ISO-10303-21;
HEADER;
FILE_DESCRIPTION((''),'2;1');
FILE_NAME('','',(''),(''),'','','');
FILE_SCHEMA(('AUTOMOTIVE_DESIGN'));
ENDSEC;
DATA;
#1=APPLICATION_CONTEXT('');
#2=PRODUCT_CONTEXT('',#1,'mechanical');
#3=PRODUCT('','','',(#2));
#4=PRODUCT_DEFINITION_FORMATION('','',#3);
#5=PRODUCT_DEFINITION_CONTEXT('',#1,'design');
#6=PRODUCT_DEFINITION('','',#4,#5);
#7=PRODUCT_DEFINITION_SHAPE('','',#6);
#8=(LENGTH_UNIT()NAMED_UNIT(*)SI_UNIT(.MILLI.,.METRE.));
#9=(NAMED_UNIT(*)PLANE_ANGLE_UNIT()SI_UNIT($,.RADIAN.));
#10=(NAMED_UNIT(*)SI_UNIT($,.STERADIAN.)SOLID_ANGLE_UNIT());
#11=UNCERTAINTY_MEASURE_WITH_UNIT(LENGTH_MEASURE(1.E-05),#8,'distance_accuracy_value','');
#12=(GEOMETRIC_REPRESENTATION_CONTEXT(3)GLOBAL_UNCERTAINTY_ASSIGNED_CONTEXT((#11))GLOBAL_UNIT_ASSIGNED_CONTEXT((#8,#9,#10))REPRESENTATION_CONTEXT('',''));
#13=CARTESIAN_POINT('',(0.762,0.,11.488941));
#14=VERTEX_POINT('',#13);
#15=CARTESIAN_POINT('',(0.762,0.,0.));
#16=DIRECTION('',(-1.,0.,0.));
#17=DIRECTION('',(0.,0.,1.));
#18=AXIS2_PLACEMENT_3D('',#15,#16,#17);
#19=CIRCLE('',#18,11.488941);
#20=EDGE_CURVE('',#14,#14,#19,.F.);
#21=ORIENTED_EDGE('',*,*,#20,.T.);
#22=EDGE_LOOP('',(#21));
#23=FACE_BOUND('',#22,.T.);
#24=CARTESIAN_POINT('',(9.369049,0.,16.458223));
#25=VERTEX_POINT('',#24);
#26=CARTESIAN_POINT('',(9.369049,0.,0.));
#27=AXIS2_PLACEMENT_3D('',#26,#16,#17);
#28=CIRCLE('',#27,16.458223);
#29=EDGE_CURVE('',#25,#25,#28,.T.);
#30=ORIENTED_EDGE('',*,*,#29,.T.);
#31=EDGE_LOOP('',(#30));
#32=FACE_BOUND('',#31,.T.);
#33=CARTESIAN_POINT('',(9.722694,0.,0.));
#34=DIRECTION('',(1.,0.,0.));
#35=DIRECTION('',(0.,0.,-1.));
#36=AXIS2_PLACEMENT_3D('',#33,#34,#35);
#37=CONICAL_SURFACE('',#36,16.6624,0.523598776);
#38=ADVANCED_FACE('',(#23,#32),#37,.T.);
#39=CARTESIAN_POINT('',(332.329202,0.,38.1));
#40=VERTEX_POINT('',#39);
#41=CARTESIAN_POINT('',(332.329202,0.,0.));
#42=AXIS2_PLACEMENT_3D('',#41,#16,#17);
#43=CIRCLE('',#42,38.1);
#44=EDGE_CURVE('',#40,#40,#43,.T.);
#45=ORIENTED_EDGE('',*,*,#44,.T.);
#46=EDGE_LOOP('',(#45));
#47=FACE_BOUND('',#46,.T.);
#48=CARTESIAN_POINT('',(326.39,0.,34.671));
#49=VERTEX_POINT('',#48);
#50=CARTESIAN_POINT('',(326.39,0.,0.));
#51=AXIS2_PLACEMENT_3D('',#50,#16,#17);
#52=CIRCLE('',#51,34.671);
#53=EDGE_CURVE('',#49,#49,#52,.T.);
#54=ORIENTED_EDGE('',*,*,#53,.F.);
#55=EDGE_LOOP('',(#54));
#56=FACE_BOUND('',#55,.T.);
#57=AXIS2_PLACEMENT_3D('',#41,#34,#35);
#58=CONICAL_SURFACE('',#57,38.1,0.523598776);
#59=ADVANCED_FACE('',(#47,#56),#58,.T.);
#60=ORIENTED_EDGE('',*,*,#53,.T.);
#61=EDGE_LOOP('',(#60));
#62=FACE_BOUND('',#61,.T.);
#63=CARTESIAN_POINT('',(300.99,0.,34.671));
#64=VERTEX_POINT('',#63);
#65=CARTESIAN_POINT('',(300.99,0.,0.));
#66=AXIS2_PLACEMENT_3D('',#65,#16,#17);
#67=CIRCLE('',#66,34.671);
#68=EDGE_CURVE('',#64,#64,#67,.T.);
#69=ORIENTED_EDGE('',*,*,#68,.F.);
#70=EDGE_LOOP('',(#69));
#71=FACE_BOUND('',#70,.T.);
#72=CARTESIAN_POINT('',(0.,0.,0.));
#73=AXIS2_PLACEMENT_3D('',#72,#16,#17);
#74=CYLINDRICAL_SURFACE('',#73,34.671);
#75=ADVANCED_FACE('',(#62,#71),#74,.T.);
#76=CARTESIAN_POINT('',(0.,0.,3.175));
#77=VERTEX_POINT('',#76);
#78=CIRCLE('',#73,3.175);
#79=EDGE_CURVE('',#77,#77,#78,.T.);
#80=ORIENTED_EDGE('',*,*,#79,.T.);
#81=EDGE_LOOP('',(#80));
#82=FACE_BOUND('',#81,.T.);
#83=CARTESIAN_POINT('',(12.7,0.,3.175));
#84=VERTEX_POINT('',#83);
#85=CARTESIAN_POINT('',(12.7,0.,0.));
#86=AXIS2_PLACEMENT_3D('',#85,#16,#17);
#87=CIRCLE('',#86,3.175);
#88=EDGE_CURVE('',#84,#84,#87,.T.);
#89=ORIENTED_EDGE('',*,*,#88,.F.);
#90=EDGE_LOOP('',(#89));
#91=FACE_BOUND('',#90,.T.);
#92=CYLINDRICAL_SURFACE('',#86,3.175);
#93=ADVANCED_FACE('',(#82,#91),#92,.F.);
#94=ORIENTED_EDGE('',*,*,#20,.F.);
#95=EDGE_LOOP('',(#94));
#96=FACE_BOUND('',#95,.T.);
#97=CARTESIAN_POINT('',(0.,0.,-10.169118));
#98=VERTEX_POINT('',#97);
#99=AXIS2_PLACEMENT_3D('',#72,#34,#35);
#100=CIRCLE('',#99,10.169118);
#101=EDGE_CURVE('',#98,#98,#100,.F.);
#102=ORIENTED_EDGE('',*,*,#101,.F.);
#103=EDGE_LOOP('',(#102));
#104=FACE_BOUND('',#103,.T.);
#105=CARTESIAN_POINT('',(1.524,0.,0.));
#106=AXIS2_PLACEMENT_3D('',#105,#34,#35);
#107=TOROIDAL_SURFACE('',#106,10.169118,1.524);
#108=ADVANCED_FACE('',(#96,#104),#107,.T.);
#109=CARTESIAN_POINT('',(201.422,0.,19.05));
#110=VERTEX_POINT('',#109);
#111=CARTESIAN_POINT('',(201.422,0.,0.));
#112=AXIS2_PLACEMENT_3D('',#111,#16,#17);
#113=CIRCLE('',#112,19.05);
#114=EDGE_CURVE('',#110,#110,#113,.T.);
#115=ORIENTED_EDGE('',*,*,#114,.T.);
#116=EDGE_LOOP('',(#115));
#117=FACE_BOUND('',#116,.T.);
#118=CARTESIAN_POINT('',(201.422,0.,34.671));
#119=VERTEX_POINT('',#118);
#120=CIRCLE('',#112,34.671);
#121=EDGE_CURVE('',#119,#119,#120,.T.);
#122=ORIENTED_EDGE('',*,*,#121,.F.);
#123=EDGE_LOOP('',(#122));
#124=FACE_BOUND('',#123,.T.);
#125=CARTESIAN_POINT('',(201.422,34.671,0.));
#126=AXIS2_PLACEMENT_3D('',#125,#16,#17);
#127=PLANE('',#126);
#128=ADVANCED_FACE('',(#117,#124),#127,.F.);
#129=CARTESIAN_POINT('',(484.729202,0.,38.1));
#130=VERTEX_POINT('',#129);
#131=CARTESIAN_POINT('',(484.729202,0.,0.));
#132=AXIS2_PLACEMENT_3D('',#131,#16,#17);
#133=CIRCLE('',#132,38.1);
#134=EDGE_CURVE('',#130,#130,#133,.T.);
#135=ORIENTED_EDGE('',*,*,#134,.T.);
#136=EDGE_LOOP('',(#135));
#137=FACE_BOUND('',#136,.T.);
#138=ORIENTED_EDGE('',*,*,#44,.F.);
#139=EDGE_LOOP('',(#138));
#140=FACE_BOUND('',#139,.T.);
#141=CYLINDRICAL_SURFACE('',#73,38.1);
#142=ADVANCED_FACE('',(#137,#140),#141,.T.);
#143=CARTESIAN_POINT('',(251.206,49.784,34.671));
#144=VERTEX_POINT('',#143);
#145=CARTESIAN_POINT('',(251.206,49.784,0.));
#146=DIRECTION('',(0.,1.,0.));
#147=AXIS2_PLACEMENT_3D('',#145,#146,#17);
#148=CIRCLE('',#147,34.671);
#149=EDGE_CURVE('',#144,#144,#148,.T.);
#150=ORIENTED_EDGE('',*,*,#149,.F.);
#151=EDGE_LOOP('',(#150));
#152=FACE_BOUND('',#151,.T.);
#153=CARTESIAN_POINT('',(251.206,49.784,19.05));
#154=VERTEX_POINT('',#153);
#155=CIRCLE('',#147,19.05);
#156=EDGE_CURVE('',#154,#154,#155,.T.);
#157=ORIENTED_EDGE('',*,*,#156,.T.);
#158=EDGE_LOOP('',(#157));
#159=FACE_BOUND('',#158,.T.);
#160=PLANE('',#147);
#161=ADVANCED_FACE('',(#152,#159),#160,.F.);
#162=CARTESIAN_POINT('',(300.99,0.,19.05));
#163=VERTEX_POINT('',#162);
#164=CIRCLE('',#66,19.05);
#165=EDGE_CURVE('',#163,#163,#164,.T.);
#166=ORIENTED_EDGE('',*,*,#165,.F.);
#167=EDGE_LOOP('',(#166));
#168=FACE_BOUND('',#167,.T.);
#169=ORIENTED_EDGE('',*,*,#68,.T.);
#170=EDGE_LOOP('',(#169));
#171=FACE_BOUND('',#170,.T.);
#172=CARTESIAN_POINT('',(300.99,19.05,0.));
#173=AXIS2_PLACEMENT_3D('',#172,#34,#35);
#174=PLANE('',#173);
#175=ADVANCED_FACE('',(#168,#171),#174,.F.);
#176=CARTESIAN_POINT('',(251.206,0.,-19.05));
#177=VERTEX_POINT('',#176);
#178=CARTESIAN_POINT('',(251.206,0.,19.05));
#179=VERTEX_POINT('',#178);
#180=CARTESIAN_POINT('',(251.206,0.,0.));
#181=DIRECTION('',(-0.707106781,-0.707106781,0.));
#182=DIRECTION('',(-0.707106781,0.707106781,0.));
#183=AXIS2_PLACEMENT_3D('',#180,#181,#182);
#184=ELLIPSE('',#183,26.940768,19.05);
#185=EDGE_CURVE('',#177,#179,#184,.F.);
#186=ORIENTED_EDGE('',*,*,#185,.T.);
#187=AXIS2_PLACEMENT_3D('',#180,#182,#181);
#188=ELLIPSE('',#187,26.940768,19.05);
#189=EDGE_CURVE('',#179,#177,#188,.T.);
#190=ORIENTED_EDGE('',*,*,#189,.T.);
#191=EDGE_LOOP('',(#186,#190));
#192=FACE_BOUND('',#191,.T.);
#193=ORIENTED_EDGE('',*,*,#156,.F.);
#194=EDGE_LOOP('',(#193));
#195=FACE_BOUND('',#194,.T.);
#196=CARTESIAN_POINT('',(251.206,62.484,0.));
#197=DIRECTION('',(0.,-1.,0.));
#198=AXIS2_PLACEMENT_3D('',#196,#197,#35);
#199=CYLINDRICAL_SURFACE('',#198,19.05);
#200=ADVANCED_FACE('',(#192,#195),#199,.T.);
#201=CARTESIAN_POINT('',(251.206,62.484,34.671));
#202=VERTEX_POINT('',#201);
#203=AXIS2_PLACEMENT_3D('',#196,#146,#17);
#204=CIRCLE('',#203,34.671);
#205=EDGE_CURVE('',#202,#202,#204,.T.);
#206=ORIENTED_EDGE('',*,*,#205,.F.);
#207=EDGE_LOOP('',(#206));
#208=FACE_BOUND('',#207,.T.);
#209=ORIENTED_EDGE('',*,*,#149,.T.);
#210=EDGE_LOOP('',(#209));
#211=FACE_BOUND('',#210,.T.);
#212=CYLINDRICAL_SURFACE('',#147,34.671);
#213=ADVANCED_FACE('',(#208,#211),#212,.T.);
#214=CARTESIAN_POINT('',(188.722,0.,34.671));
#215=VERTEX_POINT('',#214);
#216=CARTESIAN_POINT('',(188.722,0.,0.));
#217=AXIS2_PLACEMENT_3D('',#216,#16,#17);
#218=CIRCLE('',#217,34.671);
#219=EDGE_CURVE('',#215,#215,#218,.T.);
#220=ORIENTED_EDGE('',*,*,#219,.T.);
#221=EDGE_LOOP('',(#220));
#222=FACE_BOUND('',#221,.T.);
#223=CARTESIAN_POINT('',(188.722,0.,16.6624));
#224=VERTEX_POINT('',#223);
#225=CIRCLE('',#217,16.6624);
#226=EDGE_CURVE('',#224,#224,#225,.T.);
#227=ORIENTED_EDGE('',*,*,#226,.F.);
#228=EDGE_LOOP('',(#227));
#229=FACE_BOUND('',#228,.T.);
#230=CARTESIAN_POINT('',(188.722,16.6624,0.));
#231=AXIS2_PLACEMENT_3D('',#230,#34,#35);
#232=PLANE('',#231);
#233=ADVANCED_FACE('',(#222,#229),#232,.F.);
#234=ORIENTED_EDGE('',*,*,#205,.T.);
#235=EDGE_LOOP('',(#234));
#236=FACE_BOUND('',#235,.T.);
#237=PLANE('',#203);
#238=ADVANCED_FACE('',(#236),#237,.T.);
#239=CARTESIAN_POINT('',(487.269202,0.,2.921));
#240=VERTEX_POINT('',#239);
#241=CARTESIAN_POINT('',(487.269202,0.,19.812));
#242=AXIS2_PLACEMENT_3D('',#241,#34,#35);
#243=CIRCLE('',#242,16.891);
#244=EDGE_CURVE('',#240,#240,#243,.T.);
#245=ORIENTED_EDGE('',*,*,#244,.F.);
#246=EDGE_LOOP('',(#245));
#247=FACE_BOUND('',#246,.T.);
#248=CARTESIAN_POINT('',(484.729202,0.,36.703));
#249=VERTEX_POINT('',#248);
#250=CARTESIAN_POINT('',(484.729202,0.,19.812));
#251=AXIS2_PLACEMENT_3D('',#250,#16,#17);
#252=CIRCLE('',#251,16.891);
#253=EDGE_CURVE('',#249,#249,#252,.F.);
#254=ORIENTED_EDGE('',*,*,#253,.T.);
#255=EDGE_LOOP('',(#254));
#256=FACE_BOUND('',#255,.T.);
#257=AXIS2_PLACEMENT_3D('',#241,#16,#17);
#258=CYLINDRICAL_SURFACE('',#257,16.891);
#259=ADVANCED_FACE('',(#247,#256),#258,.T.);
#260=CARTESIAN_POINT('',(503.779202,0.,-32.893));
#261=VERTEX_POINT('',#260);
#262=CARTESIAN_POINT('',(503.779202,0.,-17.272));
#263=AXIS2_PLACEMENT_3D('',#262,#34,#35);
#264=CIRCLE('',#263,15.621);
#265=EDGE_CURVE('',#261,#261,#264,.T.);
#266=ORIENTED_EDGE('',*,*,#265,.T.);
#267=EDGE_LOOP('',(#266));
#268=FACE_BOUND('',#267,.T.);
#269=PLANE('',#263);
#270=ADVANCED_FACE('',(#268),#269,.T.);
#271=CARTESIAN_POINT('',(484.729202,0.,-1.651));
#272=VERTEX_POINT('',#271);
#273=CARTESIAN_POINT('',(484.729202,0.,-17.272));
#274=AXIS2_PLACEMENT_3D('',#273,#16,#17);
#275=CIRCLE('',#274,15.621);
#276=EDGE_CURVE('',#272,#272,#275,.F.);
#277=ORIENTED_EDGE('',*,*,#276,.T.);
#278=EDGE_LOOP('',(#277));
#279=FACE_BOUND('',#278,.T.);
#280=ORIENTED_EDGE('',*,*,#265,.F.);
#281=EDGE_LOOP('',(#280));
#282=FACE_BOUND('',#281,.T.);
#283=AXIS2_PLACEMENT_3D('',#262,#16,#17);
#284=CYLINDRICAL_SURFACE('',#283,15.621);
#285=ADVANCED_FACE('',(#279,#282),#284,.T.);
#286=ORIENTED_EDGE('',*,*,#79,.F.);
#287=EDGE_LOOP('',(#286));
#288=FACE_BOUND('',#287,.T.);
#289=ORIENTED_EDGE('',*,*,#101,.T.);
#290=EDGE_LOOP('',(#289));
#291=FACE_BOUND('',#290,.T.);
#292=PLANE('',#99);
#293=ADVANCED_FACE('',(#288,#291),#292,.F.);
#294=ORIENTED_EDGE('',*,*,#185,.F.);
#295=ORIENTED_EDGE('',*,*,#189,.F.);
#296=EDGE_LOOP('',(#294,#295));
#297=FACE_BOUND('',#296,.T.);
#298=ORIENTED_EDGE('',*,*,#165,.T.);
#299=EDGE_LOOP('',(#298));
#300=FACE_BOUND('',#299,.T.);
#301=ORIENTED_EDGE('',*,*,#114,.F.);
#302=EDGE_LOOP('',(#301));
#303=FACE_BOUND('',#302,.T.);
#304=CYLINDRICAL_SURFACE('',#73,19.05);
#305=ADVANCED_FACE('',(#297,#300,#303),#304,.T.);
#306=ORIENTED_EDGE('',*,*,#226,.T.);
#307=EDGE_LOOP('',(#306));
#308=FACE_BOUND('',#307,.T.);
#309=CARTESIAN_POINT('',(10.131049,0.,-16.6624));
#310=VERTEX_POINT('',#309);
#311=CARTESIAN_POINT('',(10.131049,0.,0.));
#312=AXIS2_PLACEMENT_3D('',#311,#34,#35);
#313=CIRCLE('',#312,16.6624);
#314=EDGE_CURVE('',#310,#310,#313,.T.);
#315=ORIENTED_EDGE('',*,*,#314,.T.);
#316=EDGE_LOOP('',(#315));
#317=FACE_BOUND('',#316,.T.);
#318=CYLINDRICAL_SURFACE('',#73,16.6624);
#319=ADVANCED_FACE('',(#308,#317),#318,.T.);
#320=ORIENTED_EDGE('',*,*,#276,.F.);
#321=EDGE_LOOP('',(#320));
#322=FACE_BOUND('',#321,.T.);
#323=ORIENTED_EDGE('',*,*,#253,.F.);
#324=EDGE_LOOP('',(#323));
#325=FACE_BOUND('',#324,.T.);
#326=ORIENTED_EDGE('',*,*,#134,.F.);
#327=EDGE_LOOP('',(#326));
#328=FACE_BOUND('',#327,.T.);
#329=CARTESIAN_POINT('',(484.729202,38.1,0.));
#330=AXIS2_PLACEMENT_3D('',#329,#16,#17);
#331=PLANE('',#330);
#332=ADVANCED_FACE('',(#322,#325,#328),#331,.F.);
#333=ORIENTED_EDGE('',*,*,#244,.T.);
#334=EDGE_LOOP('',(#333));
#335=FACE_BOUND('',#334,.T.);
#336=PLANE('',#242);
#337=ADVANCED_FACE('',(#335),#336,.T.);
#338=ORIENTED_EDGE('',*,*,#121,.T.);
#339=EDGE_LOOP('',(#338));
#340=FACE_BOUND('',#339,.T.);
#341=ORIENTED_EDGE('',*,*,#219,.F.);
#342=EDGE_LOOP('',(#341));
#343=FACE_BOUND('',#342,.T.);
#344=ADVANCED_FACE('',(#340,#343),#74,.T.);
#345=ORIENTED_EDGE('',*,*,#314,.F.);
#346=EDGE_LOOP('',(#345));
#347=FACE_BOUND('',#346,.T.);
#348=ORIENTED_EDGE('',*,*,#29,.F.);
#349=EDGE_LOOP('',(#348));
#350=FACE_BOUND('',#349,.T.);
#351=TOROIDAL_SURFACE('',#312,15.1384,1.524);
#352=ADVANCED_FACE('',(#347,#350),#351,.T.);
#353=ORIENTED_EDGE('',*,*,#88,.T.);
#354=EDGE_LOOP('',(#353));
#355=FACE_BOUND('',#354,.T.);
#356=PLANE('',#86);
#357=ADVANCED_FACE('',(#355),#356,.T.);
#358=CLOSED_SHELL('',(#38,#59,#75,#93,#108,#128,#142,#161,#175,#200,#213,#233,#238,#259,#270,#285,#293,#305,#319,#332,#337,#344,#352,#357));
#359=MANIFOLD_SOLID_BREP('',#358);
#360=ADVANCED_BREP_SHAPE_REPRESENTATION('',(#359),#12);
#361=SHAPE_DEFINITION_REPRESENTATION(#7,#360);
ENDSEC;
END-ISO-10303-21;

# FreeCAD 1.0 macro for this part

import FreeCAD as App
import Part
import Sketcher

V = App.Vector
Q = App.Units.Quantity


def edges_at(feature, points):
    """Names of the edges that pass closest to the given points."""
    edges = feature.Shape.Edges
    near = lambda p: min(range(len(edges)), key=lambda i: edges[i].distToShape(Part.Vertex(*p))[0])
    return sorted({f"Edge{near(p) + 1}" for p in points})

doc = App.newDocument("Part")
body = doc.addObject("PartDesign::Body", "Body")

# Sketch on XY plane
sketch1 = body.newObject("Sketcher::SketchObject", "Sketch")
sketch1.AttachmentSupport = (doc.getObject("XY_Plane"), [""])
sketch1.MapMode = "FlatFace"
sketch1.addGeometry(Part.LineSegment(V(0, 11.049, 0), V(0, 0, 0)), False)
sketch1.addGeometry(Part.LineSegment(V(0, 0, 0), V(484.729202, 0, 0)), False)
sketch1.addGeometry(Part.LineSegment(V(484.729202, 0, 0), V(484.729202, 38.1, 0)), False)
sketch1.addGeometry(Part.LineSegment(V(484.729202, 38.1, 0), V(332.329202, 38.1, 0)), False)
sketch1.addGeometry(Part.LineSegment(V(332.329202, 38.1, 0), V(326.39, 34.671, 0)), False)
sketch1.addGeometry(Part.LineSegment(V(326.39, 34.671, 0), V(300.99, 34.671, 0)), False)
sketch1.addGeometry(Part.LineSegment(V(300.99, 34.671, 0), V(300.99, 19.05, 0)), False)
sketch1.addGeometry(Part.LineSegment(V(300.99, 19.05, 0), V(201.422, 19.05, 0)), False)
sketch1.addGeometry(Part.LineSegment(V(201.422, 19.05, 0), V(201.422, 34.671, 0)), False)
sketch1.addGeometry(Part.LineSegment(V(201.422, 34.671, 0), V(188.722, 34.671, 0)), False)
sketch1.addGeometry(Part.LineSegment(V(188.722, 34.671, 0), V(188.722, 16.6624, 0)), False)
sketch1.addGeometry(Part.LineSegment(V(188.722, 16.6624, 0), V(9.722694, 16.6624, 0)), False)
sketch1.addGeometry(Part.LineSegment(V(9.722694, 16.6624, 0), V(0, 11.049, 0)), False)
sketch1.addConstraint(Sketcher.Constraint("Coincident", 0, 2, 1, 1))
sketch1.addConstraint(Sketcher.Constraint("Coincident", 1, 2, 2, 1))
sketch1.addConstraint(Sketcher.Constraint("Coincident", 2, 2, 3, 1))
sketch1.addConstraint(Sketcher.Constraint("Coincident", 3, 2, 4, 1))
sketch1.addConstraint(Sketcher.Constraint("Coincident", 4, 2, 5, 1))
sketch1.addConstraint(Sketcher.Constraint("Coincident", 5, 2, 6, 1))
sketch1.addConstraint(Sketcher.Constraint("Coincident", 6, 2, 7, 1))
sketch1.addConstraint(Sketcher.Constraint("Coincident", 7, 2, 8, 1))
sketch1.addConstraint(Sketcher.Constraint("Coincident", 8, 2, 9, 1))
sketch1.addConstraint(Sketcher.Constraint("Coincident", 9, 2, 10, 1))
sketch1.addConstraint(Sketcher.Constraint("Coincident", 10, 2, 11, 1))
sketch1.addConstraint(Sketcher.Constraint("Coincident", 11, 2, 12, 1))
sketch1.addConstraint(Sketcher.Constraint("Coincident", 12, 2, 0, 1))
sketch1.addConstraint(Sketcher.Constraint("Vertical", 0))
sketch1.addConstraint(Sketcher.Constraint("Horizontal", 1))
sketch1.addConstraint(Sketcher.Constraint("Vertical", 2))
sketch1.addConstraint(Sketcher.Constraint("Horizontal", 3))
sketch1.addConstraint(Sketcher.Constraint("Horizontal", 5))
sketch1.addConstraint(Sketcher.Constraint("Vertical", 6))
sketch1.addConstraint(Sketcher.Constraint("Horizontal", 7))
sketch1.addConstraint(Sketcher.Constraint("Vertical", 8))
sketch1.addConstraint(Sketcher.Constraint("Horizontal", 9))
sketch1.addConstraint(Sketcher.Constraint("Vertical", 10))
sketch1.addConstraint(Sketcher.Constraint("Horizontal", 11))
sketch1.addConstraint(Sketcher.Constraint("Coincident", 0, 2, -1, 1))
sketch1.addConstraint(Sketcher.Constraint("Parallel", 4, 12))
sketch1.addConstraint(Sketcher.Constraint("Horizontal", 5, 2, 8, 2))
sketch1.addConstraint(Sketcher.Constraint("DistanceX", 3, 2, 3, 1, Q("6 in")))
sketch1.addConstraint(Sketcher.Constraint("DistanceX", 5, 2, 5, 1, Q("1 in")))
sketch1.addConstraint(Sketcher.Constraint("DistanceX", 9, 2, 9, 1, Q("0.5 in")))
sketch1.addConstraint(Sketcher.Constraint("DistanceY", 2, 1, 2, 2, Q("1.5 in")))
sketch1.addConstraint(Sketcher.Constraint("Angle", 4, Q("-150 deg")))
sketch1.addConstraint(Sketcher.Constraint("DistanceX", 7, 2, 7, 1, Q("3.92 in")))
sketch1.addConstraint(Sketcher.Constraint("Distance", 4, Q("0.27 in")))
sketch1.addConstraint(Sketcher.Constraint("DistanceY", 0, 2, 0, 1, Q("0.435 in")))
sketch1.addConstraint(Sketcher.Constraint("DistanceY", 6, 2, 6, 1, Q("0.615 in")))
sketch1.addConstraint(Sketcher.Constraint("DistanceY", 10, 2, 10, 1, Q("0.709 in")))
sketch1.addConstraint(Sketcher.Constraint("DistanceX", -1, 1, 4, 2, Q("12.85 in")))
revolution = body.newObject("PartDesign::Revolution", "Revolution")
revolution.Profile = sketch1
revolution.ReferenceAxis = (sketch1, ["H_Axis"])
revolution.Angle = 360

# Sketch on XZ plane
sketch2 = body.newObject("Sketcher::SketchObject", "Sketch001")
sketch2.AttachmentSupport = (doc.getObject("XZ_Plane"), [""])
sketch2.MapMode = "FlatFace"
sketch2.addGeometry(Part.Circle(V(251.206, 0, 0), V(0, 0, 1), 19.05), False)
sketch2.addConstraint(Sketcher.Constraint("PointOnObject", 0, 3, -1))
sketch2.addConstraint(Sketcher.Constraint("Diameter", 0, Q("1.5 in")))
sketch2.addConstraint(Sketcher.Constraint("DistanceX", -1, 1, 0, 3, Q("9.89 in")))
pad1 = body.newObject("PartDesign::Pad", "Pad")
pad1.Profile = sketch2
pad1.Length = Q("2.46 in")
pad1.Reversed = True

# Sketch on XZ plane
sketch3 = body.newObject("Sketcher::SketchObject", "Sketch002")
sketch3.AttachmentSupport = (doc.getObject("XZ_Plane"), [""])
sketch3.MapMode = "FlatFace"
sketch3.AttachmentOffset = App.Placement(V(0, 0, -2.46 * 25.4), App.Rotation())
sketch3.addGeometry(Part.Circle(V(251.206, 0, 0), V(0, 0, 1), 34.671), False)
sketch3.addConstraint(Sketcher.Constraint("PointOnObject", 0, 3, -1))
sketch3.addConstraint(Sketcher.Constraint("Diameter", 0, Q("2.73 in")))
sketch3.addConstraint(Sketcher.Constraint("DistanceX", -1, 1, 0, 3, Q("9.89 in")))
pad2 = body.newObject("PartDesign::Pad", "Pad001")
pad2.Profile = sketch3
pad2.Length = Q("0.5 in")

# Sketch on YZ plane
sketch4 = body.newObject("Sketcher::SketchObject", "Sketch003")
sketch4.AttachmentSupport = (doc.getObject("YZ_Plane"), [""])
sketch4.MapMode = "FlatFace"
sketch4.AttachmentOffset = App.Placement(V(0, 0, 484.729202), App.Rotation())
sketch4.addGeometry(Part.Circle(V(0, -17.272, 0), V(0, 0, 1), 15.621), False)
sketch4.addConstraint(Sketcher.Constraint("PointOnObject", 0, 3, -2))
sketch4.addConstraint(Sketcher.Constraint("Diameter", 0, Q("1.23 in")))
sketch4.addConstraint(Sketcher.Constraint("DistanceY", 0, 3, -1, 1, Q("0.68 in")))
pad3 = body.newObject("PartDesign::Pad", "Pad002")
pad3.Profile = sketch4
pad3.Length = Q("0.75 in")

# Sketch on YZ plane
sketch5 = body.newObject("Sketcher::SketchObject", "Sketch004")
sketch5.AttachmentSupport = (doc.getObject("YZ_Plane"), [""])
sketch5.MapMode = "FlatFace"
sketch5.AttachmentOffset = App.Placement(V(0, 0, 484.729202), App.Rotation())
sketch5.addGeometry(Part.Circle(V(0, 19.812, 0), V(0, 0, 1), 16.891), False)
sketch5.addConstraint(Sketcher.Constraint("PointOnObject", 0, 3, -2))
sketch5.addConstraint(Sketcher.Constraint("Diameter", 0, Q("1.33 in")))
sketch5.addConstraint(Sketcher.Constraint("DistanceY", -1, 1, 0, 3, Q("0.78 in")))
pad4 = body.newObject("PartDesign::Pad", "Pad003")
pad4.Profile = sketch5
pad4.Length = Q("0.1 in")
doc.recompute()

fillet = body.newObject("PartDesign::Fillet", "Fillet")
fillet.Base = (pad4, edges_at(pad4, [(9.723, 0, -16.662), (0, 0, -11.049)]))
fillet.Radius = Q("0.06 in")

# Sketch on YZ plane
sketch6 = body.newObject("Sketcher::SketchObject", "Sketch005")
sketch6.AttachmentSupport = (doc.getObject("YZ_Plane"), [""])
sketch6.MapMode = "FlatFace"
sketch6.addGeometry(Part.Circle(V(0, 0, 0), V(0, 0, 1), 3.175), False)
sketch6.addConstraint(Sketcher.Constraint("Coincident", 0, 3, -1, 1))
sketch6.addConstraint(Sketcher.Constraint("Diameter", 0, Q("0.25 in")))
pocket1 = body.newObject("PartDesign::Pocket", "Pocket")
pocket1.Profile = sketch6
pocket1.Length = Q("0.5 in")
pocket1.Reversed = True

doc.recompute()
